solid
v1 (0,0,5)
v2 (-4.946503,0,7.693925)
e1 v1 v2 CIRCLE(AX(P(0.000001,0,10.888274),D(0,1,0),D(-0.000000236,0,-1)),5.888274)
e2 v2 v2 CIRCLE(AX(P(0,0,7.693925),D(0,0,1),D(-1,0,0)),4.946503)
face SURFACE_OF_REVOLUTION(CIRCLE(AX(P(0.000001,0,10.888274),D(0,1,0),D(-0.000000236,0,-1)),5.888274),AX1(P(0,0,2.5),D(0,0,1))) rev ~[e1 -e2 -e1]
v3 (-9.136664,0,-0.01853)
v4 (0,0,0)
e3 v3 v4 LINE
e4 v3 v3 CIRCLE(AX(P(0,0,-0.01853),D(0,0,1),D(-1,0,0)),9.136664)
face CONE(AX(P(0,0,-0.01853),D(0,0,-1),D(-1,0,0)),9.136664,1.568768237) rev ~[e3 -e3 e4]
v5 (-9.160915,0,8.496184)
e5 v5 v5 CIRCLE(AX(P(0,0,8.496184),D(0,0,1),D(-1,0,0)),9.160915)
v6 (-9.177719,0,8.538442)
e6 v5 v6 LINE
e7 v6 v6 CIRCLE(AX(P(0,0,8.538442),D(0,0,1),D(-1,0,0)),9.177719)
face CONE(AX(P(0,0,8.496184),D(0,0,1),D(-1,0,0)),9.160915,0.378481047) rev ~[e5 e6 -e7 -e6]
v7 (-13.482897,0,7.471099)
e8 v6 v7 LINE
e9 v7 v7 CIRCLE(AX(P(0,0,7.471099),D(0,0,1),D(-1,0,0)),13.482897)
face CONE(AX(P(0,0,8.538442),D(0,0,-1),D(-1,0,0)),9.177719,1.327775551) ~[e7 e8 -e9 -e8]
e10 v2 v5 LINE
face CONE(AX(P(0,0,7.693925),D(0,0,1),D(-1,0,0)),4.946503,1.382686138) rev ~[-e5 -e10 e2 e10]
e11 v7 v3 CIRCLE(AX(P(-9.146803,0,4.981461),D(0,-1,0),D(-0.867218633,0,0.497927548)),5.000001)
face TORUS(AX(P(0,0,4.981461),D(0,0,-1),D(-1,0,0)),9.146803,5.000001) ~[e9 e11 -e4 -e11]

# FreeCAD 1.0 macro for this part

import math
import FreeCAD as App
import Part
import Sketcher

V = App.Vector
Q = App.Units.Quantity

doc = App.newDocument("Part")
body = doc.addObject("PartDesign::Body", "Body")

# Sketch on XZ plane
sketch1 = doc.addObject("Sketcher::SketchObject", "Sketch")
body.addObject(sketch1)
sketch1.AttachmentSupport = (doc.XZ_Plane, [""])
sketch1.MapMode = "FlatFace"
sketch1.addGeometry(Part.ArcOfCircle(Part.Circle(V(0.000001, 10.888274, 0), V(0, 0, 1), 5.888274), math.radians(-147.146471), math.radians(-90.000014)), False)
sketch1.addGeometry(Part.LineSegment(V(-4.946503, 7.693925, 0), V(-9.160915, 8.496184, 0)), False)
sketch1.addGeometry(Part.LineSegment(V(-9.160915, 8.496184, 0), V(-9.177719, 8.538442, 0)), False)
sketch1.addGeometry(Part.LineSegment(V(-9.177719, 8.538442, 0), V(-13.482897, 7.471099, 0)), False)
sketch1.addGeometry(Part.ArcOfCircle(Part.Circle(V(-9.146803, 4.981461, 0), V(0, 0, 1), 5.000001), math.radians(150.137018), math.radians(270.116184)), False)
sketch1.addGeometry(Part.LineSegment(V(-9.136664, -0.01853, 0), V(0, 0, 0)), False)
sketch1.addGeometry(Part.LineSegment(V(0, 0, 0), V(0, 5, 0)), False)
sketch1.addConstraint(Sketcher.Constraint("Coincident", 0, 1, 1, 1))
sketch1.addConstraint(Sketcher.Constraint("Coincident", 1, 2, 2, 1))
sketch1.addConstraint(Sketcher.Constraint("Coincident", 2, 2, 3, 1))
sketch1.addConstraint(Sketcher.Constraint("Coincident", 3, 2, 4, 1))
sketch1.addConstraint(Sketcher.Constraint("Tangent", 4, 2, 5, 1))
sketch1.addConstraint(Sketcher.Constraint("Coincident", 5, 2, 6, 1))
sketch1.addConstraint(Sketcher.Constraint("Coincident", 6, 2, 0, 2))
sketch1.addConstraint(Sketcher.Constraint("Vertical", 6))
sketch1.addConstraint(Sketcher.Constraint("Coincident", 5, 2, -1, 1))
sketch1.addConstraint(Sketcher.Constraint("PointOnObject", 0, 3, -2))
sketch1.addConstraint(Sketcher.Constraint("Radius", 4, Q("5.000001 mm")))
sketch1.addConstraint(Sketcher.Constraint("DistanceY", 6, 1, 6, 2, Q("5 mm")))
sketch1.addConstraint(Sketcher.Constraint("Radius", 0, Q("5.888274 mm")))
sketch1.addConstraint(Sketcher.Constraint("DistanceY", -1, 1, 3, 2, Q("7.471099 mm")))
sketch1.addConstraint(Sketcher.Constraint("DistanceX", 4, 3, 0, 1, Q("4.2003 mm")))
sketch1.addConstraint(Sketcher.Constraint("DistanceX", 3, 2, 0, 3, Q("13.482898 mm")))
sketch1.addConstraint(Sketcher.Constraint("Distance", 1, Q("4.290092 mm")))
sketch1.addConstraint(Sketcher.Constraint("DistanceY", -1, 1, 4, 3, Q("4.981461 mm")))
sketch1.addConstraint(Sketcher.Constraint("DistanceX", 2, 2, -1, 1, Q("9.177719 mm")))
sketch1.addConstraint(Sketcher.Constraint("DistanceY", 0, 1, 1, 2, Q("0.802259 mm")))
sketch1.addConstraint(Sketcher.Constraint("DistanceY", 1, 2, 2, 2, Q("0.042258 mm")))
revolution = doc.addObject("PartDesign::Revolution", "Revolution")
body.addObject(revolution)
revolution.Profile = sketch1
revolution.ReferenceAxis = (sketch1, ["V_Axis"])
revolution.Angle = 360

doc.recompute()
